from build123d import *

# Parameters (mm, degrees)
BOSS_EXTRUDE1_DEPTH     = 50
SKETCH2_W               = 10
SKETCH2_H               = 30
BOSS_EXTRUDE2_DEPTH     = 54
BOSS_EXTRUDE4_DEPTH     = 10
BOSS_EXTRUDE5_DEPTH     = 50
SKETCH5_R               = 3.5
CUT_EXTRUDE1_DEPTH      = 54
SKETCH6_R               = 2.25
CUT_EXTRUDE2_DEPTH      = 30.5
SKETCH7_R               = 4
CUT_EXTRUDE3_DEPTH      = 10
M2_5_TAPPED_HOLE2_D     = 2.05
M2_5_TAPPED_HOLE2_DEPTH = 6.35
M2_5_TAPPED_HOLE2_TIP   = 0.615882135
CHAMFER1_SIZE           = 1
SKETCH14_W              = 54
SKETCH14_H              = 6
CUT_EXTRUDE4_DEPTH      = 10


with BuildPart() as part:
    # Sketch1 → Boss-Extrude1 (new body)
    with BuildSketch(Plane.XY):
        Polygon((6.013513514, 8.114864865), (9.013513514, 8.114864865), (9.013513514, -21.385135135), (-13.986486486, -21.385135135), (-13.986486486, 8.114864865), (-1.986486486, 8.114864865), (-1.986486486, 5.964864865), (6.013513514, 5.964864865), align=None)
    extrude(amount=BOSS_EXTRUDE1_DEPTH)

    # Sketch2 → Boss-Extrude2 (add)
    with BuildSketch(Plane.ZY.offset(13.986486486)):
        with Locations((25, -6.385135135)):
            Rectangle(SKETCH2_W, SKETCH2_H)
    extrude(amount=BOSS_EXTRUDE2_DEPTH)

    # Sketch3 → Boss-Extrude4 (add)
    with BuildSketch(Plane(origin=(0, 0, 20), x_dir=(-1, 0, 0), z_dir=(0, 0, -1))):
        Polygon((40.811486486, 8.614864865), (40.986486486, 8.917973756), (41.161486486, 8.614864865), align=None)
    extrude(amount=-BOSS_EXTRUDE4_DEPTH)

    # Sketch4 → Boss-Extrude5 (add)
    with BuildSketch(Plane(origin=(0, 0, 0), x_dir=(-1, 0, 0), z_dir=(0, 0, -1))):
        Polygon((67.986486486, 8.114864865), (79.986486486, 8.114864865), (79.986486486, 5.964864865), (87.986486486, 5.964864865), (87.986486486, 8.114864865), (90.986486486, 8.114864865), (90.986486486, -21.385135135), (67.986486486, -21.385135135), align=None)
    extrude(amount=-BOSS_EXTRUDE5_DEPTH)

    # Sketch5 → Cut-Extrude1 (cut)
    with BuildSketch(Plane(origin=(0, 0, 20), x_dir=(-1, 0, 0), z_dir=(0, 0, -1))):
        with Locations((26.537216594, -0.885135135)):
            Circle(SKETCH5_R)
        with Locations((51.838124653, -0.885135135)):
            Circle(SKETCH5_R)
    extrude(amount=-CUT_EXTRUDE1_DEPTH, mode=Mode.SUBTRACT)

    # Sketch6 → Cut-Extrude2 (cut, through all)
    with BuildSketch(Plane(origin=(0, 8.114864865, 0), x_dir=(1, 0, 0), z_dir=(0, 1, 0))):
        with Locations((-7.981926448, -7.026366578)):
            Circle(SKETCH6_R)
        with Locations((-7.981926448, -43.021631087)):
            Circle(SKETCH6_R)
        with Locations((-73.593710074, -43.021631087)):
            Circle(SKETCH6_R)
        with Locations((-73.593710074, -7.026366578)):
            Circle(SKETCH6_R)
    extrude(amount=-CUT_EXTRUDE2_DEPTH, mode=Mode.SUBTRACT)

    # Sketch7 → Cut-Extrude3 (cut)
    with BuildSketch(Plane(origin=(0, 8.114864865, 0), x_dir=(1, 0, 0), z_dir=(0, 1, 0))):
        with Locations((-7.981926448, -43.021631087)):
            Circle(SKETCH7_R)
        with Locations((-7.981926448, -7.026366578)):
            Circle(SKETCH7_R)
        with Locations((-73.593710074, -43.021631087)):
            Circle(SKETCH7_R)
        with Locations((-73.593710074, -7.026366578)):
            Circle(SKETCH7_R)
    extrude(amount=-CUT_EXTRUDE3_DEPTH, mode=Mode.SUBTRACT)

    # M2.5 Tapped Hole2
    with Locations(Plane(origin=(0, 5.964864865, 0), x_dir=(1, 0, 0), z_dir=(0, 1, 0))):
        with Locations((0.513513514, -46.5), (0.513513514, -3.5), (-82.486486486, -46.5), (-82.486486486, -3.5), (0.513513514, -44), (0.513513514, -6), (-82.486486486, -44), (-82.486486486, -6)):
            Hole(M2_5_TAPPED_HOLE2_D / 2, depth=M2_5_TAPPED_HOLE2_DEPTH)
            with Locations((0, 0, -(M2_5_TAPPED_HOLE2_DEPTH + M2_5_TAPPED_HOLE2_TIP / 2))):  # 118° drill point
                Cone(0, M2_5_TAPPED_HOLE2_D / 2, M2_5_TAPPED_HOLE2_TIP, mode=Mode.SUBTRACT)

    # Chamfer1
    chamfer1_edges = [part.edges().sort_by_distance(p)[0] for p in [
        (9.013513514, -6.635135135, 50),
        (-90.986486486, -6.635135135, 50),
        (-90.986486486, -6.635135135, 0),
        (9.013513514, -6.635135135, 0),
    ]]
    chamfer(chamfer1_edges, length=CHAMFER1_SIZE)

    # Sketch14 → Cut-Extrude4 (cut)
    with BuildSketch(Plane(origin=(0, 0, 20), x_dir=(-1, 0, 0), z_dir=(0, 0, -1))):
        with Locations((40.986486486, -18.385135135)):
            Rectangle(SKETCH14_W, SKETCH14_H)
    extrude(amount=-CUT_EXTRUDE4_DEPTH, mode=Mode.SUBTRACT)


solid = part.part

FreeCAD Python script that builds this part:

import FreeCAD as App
import Part
import Sketcher
from FreeCAD import Vector
Q = App.Units.Quantity


def edges_at(feature, points):
    """Names of the edges that pass closest to the given points."""
    edges = feature.Shape.Edges
    near = lambda p: min(range(len(edges)), key=lambda i: edges[i].distToShape(Part.Vertex(*p))[0])
    return sorted({f"Edge{near(p) + 1}" for p in points})


def add_polygon(sketch, points):
    """Adds a closed chain of lines whose ends are joined by coincident constraints."""
    first, n = sketch.GeometryCount, len(points)
    for a, b in zip(points, points[1:] + points[:1]):
        sketch.addGeometry(Part.LineSegment(App.Vector(*a, 0), App.Vector(*b, 0)), False)
    for i in range(n):
        sketch.addConstraint(Sketcher.Constraint("Coincident", first + i, 2, first + (i + 1) % n, 1))

doc = App.newDocument("Part")
params = doc.addObject("Spreadsheet::Sheet", "Params")
for row, (alias, value) in enumerate([
    ("sketch1_width", "3 mm"),
    ("sketch1_width2", "8 mm"),
    ("sketch1_width3", "12 mm"),
    ("sketch1_height", "29.5 mm"),
    ("sketch1_height2", "2.15 mm"),
    ("pad1_length", "50 mm"),
    ("sketch2_width", "30 mm"),
    ("sketch2_height", "10 mm"),
    ("pad2_length", "54 mm"),
    ("sketch3_width", "0.35 mm"),
    ("pad3_length", "10 mm"),
    ("sketch4_width", "12 mm"),
    ("sketch4_width2", "23 mm"),
    ("sketch4_width3", "3 mm"),
    ("sketch4_height", "29.5 mm"),
    ("sketch4_height2", "2.15 mm"),
    ("pad4_length", "50 mm"),
    ("sketch5_diameter", "7 mm"),
    ("pocket1_length", "54 mm"),
    ("sketch6_diameter", "4.5 mm"),
    ("sketch7_diameter", "8 mm"),
    ("pocket3_length", "10 mm"),
    ("sketch8_diameter", "2.05 mm"),
    ("hole_diameter", "2.05 mm"),
    ("hole_depth", "6.35 mm"),
    ("chamfer_size", "1 mm"),
    ("sketch9_width", "54 mm"),
    ("sketch9_height", "6 mm"),
    ("pocket4_length", "10 mm"),
], start=1):
    params.set(f"A{row}", alias)
    params.set(f"B{row}", "=" + value)
    params.setAlias(f"B{row}", alias)

body = doc.addObject("PartDesign::Body", "Body")

# Sketch on XY plane
sketch1 = doc.addObject("Sketcher::SketchObject", "Sketch")
body.addObject(sketch1)
sketch1.AttachmentSupport = (doc.XY_Plane, [""])
sketch1.MapMode = "FlatFace"
add_polygon(sketch1, [(9, 8.1), (6, 8.1), (6, 6), (-2, 6), (-2, 8.1), (-14, 8.1), (-14, -21.4), (9, -21.4)])  # lines 0-7
sketch1.addConstraint(Sketcher.Constraint("Horizontal", 0))
sketch1.addConstraint(Sketcher.Constraint("Vertical", 1))
sketch1.addConstraint(Sketcher.Constraint("Horizontal", 2))
sketch1.addConstraint(Sketcher.Constraint("Vertical", 3))
sketch1.addConstraint(Sketcher.Constraint("Horizontal", 4))
sketch1.addConstraint(Sketcher.Constraint("Vertical", 5))
sketch1.addConstraint(Sketcher.Constraint("Horizontal", 6))
sketch1.addConstraint(Sketcher.Constraint("Vertical", 7))
sketch1.addConstraint(Sketcher.Constraint("Horizontal", 0, 2, 3, 2))
sketch1.addConstraint(Sketcher.Constraint("DistanceX", 0, 2, 0, 1, 3.0))
sketch1.addConstraint(Sketcher.Constraint("DistanceX", 2, 2, 2, 1, 8.0))
sketch1.addConstraint(Sketcher.Constraint("DistanceX", 4, 2, 4, 1, 12.0))
sketch1.addConstraint(Sketcher.Constraint("DistanceY", 5, 2, 5, 1, 29.5))
sketch1.addConstraint(Sketcher.Constraint("DistanceY", 1, 2, 1, 1, 2.15))
sketch1.addConstraint(Sketcher.Constraint("DistanceX", -1, 1, 0, 2, 6.013514))
sketch1.addConstraint(Sketcher.Constraint("DistanceY", -1, 1, 0, 2, 8.114865))
sketch1.setExpression("Constraints[17]", "Params.sketch1_width")
sketch1.setExpression("Constraints[18]", "Params.sketch1_width2")
sketch1.setExpression("Constraints[19]", "Params.sketch1_width3")
sketch1.setExpression("Constraints[20]", "Params.sketch1_height")
sketch1.setExpression("Constraints[21]", "Params.sketch1_height2")
pad1 = doc.addObject("PartDesign::Pad", "Pad")
body.addObject(pad1)
pad1.Profile = sketch1
pad1.setExpression("Length", "Params.pad1_length")

# Sketch on YZ plane
sketch2 = doc.addObject("Sketcher::SketchObject", "Sketch001")
body.addObject(sketch2)
sketch2.AttachmentSupport = (doc.YZ_Plane, [""])
sketch2.MapMode = "FlatFace"
sketch2.AttachmentOffset = App.Placement(Vector(0, 0, -13.986486), App.Rotation())
add_polygon(sketch2, [(9, 20), (-21, 20), (-21, 30), (9, 30)])  # lines 0-3
sketch2.addConstraint(Sketcher.Constraint("Horizontal", 0))
sketch2.addConstraint(Sketcher.Constraint("Vertical", 1))
sketch2.addConstraint(Sketcher.Constraint("Horizontal", 2))
sketch2.addConstraint(Sketcher.Constraint("Vertical", 3))
sketch2.addConstraint(Sketcher.Constraint("DistanceX", 0, 2, 0, 1, 30.0))
sketch2.addConstraint(Sketcher.Constraint("DistanceY", 1, 1, 1, 2, 10.0))
sketch2.addConstraint(Sketcher.Constraint("DistanceY", -1, 1, 0, 2, 20.0))
sketch2.addConstraint(Sketcher.Constraint("DistanceX", 0, 2, -1, 1, 21.385135))
sketch2.setExpression("Constraints[8]", "Params.sketch2_width")
sketch2.setExpression("Constraints[9]", "Params.sketch2_height")
pad2 = doc.addObject("PartDesign::Pad", "Pad001")
body.addObject(pad2)
pad2.Profile = sketch2
pad2.setExpression("Length", "Params.pad2_length")
pad2.Reversed = True

# Sketch on XY plane
sketch3 = doc.addObject("Sketcher::SketchObject", "Sketch002")
body.addObject(sketch3)
sketch3.AttachmentSupport = (doc.XY_Plane, [""])
sketch3.MapMode = "FlatFace"
sketch3.AttachmentOffset = App.Placement(Vector(0, 0, 20), App.Rotation())
add_polygon(sketch3, [(-40.99, 8.92), (-40.81, 8.61), (-41.16, 8.61)])  # lines 0-2
sketch3.addConstraint(Sketcher.Constraint("Horizontal", 1))
sketch3.addConstraint(Sketcher.Constraint("Equal", 0, 2))
sketch3.addConstraint(Sketcher.Constraint("Angle", 0, Q("-60 deg")))
sketch3.addConstraint(Sketcher.Constraint("DistanceX", 1, 2, 1, 1, 0.35))
sketch3.addConstraint(Sketcher.Constraint("DistanceX", 0, 2, -1, 1, 40.811486))
sketch3.addConstraint(Sketcher.Constraint("DistanceY", -1, 1, 0, 2, 8.614865))
sketch3.setExpression("Constraints[6]", "Params.sketch3_width")
pad3 = doc.addObject("PartDesign::Pad", "Pad002")
body.addObject(pad3)
pad3.Profile = sketch3
pad3.setExpression("Length", "Params.pad3_length")

# Sketch on XY plane
sketch4 = doc.addObject("Sketcher::SketchObject", "Sketch003")
body.addObject(sketch4)
sketch4.AttachmentSupport = (doc.XY_Plane, [""])
sketch4.MapMode = "FlatFace"
add_polygon(sketch4, [(-80, 8.1), (-68, 8.1), (-68, -21.4), (-91, -21.4), (-91, 8.1), (-88, 8.1), (-88, 6), (-80, 6)])  # lines 0-7
sketch4.addConstraint(Sketcher.Constraint("Horizontal", 0))
sketch4.addConstraint(Sketcher.Constraint("Vertical", 1))
sketch4.addConstraint(Sketcher.Constraint("Horizontal", 2))
sketch4.addConstraint(Sketcher.Constraint("Vertical", 3))
sketch4.addConstraint(Sketcher.Constraint("Horizontal", 4))
sketch4.addConstraint(Sketcher.Constraint("Vertical", 5))
sketch4.addConstraint(Sketcher.Constraint("Horizontal", 6))
sketch4.addConstraint(Sketcher.Constraint("Vertical", 7))
sketch4.addConstraint(Sketcher.Constraint("Horizontal", 0, 2, 3, 2))
sketch4.addConstraint(Sketcher.Constraint("DistanceX", 0, 1, 0, 2, 12.0))
sketch4.addConstraint(Sketcher.Constraint("DistanceX", 2, 2, 2, 1, 23.0))
sketch4.addConstraint(Sketcher.Constraint("DistanceX", 4, 1, 4, 2, 3.0))
sketch4.addConstraint(Sketcher.Constraint("DistanceY", 1, 2, 1, 1, 29.5))
sketch4.addConstraint(Sketcher.Constraint("DistanceY", 5, 2, 5, 1, 2.15))
sketch4.addConstraint(Sketcher.Constraint("DistanceX", 0, 2, -1, 1, 67.986486))
sketch4.addConstraint(Sketcher.Constraint("DistanceY", -1, 1, 0, 2, 8.114865))
sketch4.setExpression("Constraints[17]", "Params.sketch4_width")
sketch4.setExpression("Constraints[18]", "Params.sketch4_width2")
sketch4.setExpression("Constraints[19]", "Params.sketch4_width3")
sketch4.setExpression("Constraints[20]", "Params.sketch4_height")
sketch4.setExpression("Constraints[21]", "Params.sketch4_height2")
pad4 = doc.addObject("PartDesign::Pad", "Pad003")
body.addObject(pad4)
pad4.Profile = sketch4
pad4.setExpression("Length", "Params.pad4_length")

# Sketch on XY plane
sketch5 = doc.addObject("Sketcher::SketchObject", "Sketch004")
body.addObject(sketch5)
sketch5.AttachmentSupport = (doc.XY_Plane, [""])
sketch5.MapMode = "FlatFace"
sketch5.AttachmentOffset = App.Placement(Vector(0, 0, 20), App.Rotation())
sketch5.addGeometry(Part.Circle(Vector(-26.5, -0.9, 0), Vector(0, 0, 1), 3.5), False)
sketch5.addGeometry(Part.Circle(Vector(-51.8, -0.9, 0), Vector(0, 0, 1), 3.5), False)
sketch5.addConstraint(Sketcher.Constraint("Equal", 0, 1))
sketch5.addConstraint(Sketcher.Constraint("Horizontal", 0, 3, 1, 3))
sketch5.addConstraint(Sketcher.Constraint("Diameter", 0, 7.0))
sketch5.addConstraint(Sketcher.Constraint("DistanceX", 1, 3, 0, 3, 25.300908))
sketch5.addConstraint(Sketcher.Constraint("DistanceX", 0, 3, -1, 1, 26.537217))
sketch5.addConstraint(Sketcher.Constraint("DistanceY", 0, 3, -1, 1, 0.885135))
sketch5.setExpression("Constraints[2]", "Params.sketch5_diameter")
pocket1 = doc.addObject("PartDesign::Pocket", "Pocket")
body.addObject(pocket1)
pocket1.Profile = sketch5
pocket1.setExpression("Length", "Params.pocket1_length")
pocket1.Reversed = True

# Sketch on XZ plane
sketch6 = doc.addObject("Sketcher::SketchObject", "Sketch005")
body.addObject(sketch6)
sketch6.AttachmentSupport = (doc.XZ_Plane, [""])
sketch6.MapMode = "FlatFace"
sketch6.AttachmentOffset = App.Placement(Vector(0, 0, -8.114865), App.Rotation())
sketch6.addGeometry(Part.Circle(Vector(-8, 7, 0), Vector(0, 0, 1), 2.2), False)
sketch6.addGeometry(Part.Circle(Vector(-8, 43, 0), Vector(0, 0, 1), 2.2), False)
sketch6.addGeometry(Part.Circle(Vector(-73.6, 43, 0), Vector(0, 0, 1), 2.2), False)
sketch6.addGeometry(Part.Circle(Vector(-73.6, 7, 0), Vector(0, 0, 1), 2.2), False)
sketch6.addConstraint(Sketcher.Constraint("Equal", 0, 1))
sketch6.addConstraint(Sketcher.Constraint("Equal", 1, 2))
sketch6.addConstraint(Sketcher.Constraint("Equal", 2, 3))
sketch6.addConstraint(Sketcher.Constraint("Horizontal", 1, 3, 2, 3))
sketch6.addConstraint(Sketcher.Constraint("Horizontal", 0, 3, 3, 3))
sketch6.addConstraint(Sketcher.Constraint("Vertical", 0, 3, 1, 3))
sketch6.addConstraint(Sketcher.Constraint("Vertical", 2, 3, 3, 3))
sketch6.addConstraint(Sketcher.Constraint("Diameter", 0, 4.5))
sketch6.addConstraint(Sketcher.Constraint("DistanceY", -1, 1, 1, 3, 43.021631))
sketch6.addConstraint(Sketcher.Constraint("DistanceX", 2, 3, -1, 1, 73.59371))
sketch6.addConstraint(Sketcher.Constraint("DistanceX", 0, 3, -1, 1, 7.981926))
sketch6.addConstraint(Sketcher.Constraint("DistanceY", -1, 1, 0, 3, 7.026367))
sketch6.setExpression("Constraints[7]", "Params.sketch6_diameter")
pocket2 = doc.addObject("PartDesign::Pocket", "Pocket001")
body.addObject(pocket2)
pocket2.Profile = sketch6
pocket2.Type = "ThroughAll"
pocket2.Reversed = True

# Sketch on XZ plane
sketch7 = doc.addObject("Sketcher::SketchObject", "Sketch006")
body.addObject(sketch7)
sketch7.AttachmentSupport = (doc.XZ_Plane, [""])
sketch7.MapMode = "FlatFace"
sketch7.AttachmentOffset = App.Placement(Vector(0, 0, -8.114865), App.Rotation())
sketch7.addGeometry(Part.Circle(Vector(-8, 43, 0), Vector(0, 0, 1), 4), False)
sketch7.addGeometry(Part.Circle(Vector(-8, 7, 0), Vector(0, 0, 1), 4), False)
sketch7.addGeometry(Part.Circle(Vector(-73.6, 43, 0), Vector(0, 0, 1), 4), False)
sketch7.addGeometry(Part.Circle(Vector(-73.6, 7, 0), Vector(0, 0, 1), 4), False)
sketch7.addConstraint(Sketcher.Constraint("Equal", 0, 1))
sketch7.addConstraint(Sketcher.Constraint("Equal", 1, 2))
sketch7.addConstraint(Sketcher.Constraint("Equal", 2, 3))
sketch7.addConstraint(Sketcher.Constraint("Horizontal", 0, 3, 2, 3))
sketch7.addConstraint(Sketcher.Constraint("Horizontal", 1, 3, 3, 3))
sketch7.addConstraint(Sketcher.Constraint("Vertical", 0, 3, 1, 3))
sketch7.addConstraint(Sketcher.Constraint("Vertical", 2, 3, 3, 3))
sketch7.addConstraint(Sketcher.Constraint("Diameter", 0, 8.0))
sketch7.addConstraint(Sketcher.Constraint("DistanceY", -1, 1, 0, 3, 43.021631))
sketch7.addConstraint(Sketcher.Constraint("DistanceX", 2, 3, -1, 1, 73.59371))
sketch7.addConstraint(Sketcher.Constraint("DistanceX", 0, 3, -1, 1, 7.981926))
sketch7.addConstraint(Sketcher.Constraint("DistanceY", -1, 1, 1, 3, 7.026367))
sketch7.setExpression("Constraints[7]", "Params.sketch7_diameter")
pocket3 = doc.addObject("PartDesign::Pocket", "Pocket002")
body.addObject(pocket3)
pocket3.Profile = sketch7
pocket3.setExpression("Length", "Params.pocket3_length")
pocket3.Reversed = True

# Sketch on XZ plane
sketch8 = doc.addObject("Sketcher::SketchObject", "Sketch007")
body.addObject(sketch8)
sketch8.AttachmentSupport = (doc.XZ_Plane, [""])
sketch8.MapMode = "FlatFace"
sketch8.AttachmentOffset = App.Placement(Vector(0, 0, -5.964865), App.Rotation())
sketch8.addGeometry(Part.Circle(Vector(0.5, 46.5, 0), Vector(0, 0, 1), 1), False)
sketch8.addGeometry(Part.Circle(Vector(0.5, 3.5, 0), Vector(0, 0, 1), 1), False)
sketch8.addGeometry(Part.Circle(Vector(-82.5, 46.5, 0), Vector(0, 0, 1), 1), False)
sketch8.addGeometry(Part.Circle(Vector(-82.5, 3.5, 0), Vector(0, 0, 1), 1), False)
sketch8.addGeometry(Part.Circle(Vector(0.5, 44, 0), Vector(0, 0, 1), 1), False)
sketch8.addGeometry(Part.Circle(Vector(0.5, 6, 0), Vector(0, 0, 1), 1), False)
sketch8.addGeometry(Part.Circle(Vector(-82.5, 44, 0), Vector(0, 0, 1), 1), False)
sketch8.addGeometry(Part.Circle(Vector(-82.5, 6, 0), Vector(0, 0, 1), 1), False)
sketch8.addConstraint(Sketcher.Constraint("Equal", 0, 1))
sketch8.addConstraint(Sketcher.Constraint("Equal", 1, 2))
sketch8.addConstraint(Sketcher.Constraint("Equal", 2, 3))
sketch8.addConstraint(Sketcher.Constraint("Equal", 3, 4))
sketch8.addConstraint(Sketcher.Constraint("Equal", 4, 5))
sketch8.addConstraint(Sketcher.Constraint("Equal", 5, 6))
sketch8.addConstraint(Sketcher.Constraint("Equal", 6, 7))
sketch8.addConstraint(Sketcher.Constraint("Horizontal", 0, 3, 2, 3))
sketch8.addConstraint(Sketcher.Constraint("Horizontal", 1, 3, 3, 3))
sketch8.addConstraint(Sketcher.Constraint("Horizontal", 4, 3, 6, 3))
sketch8.addConstraint(Sketcher.Constraint("Horizontal", 5, 3, 7, 3))
sketch8.addConstraint(Sketcher.Constraint("Vertical", 0, 3, 1, 3))
sketch8.addConstraint(Sketcher.Constraint("Vertical", 2, 3, 3, 3))
sketch8.addConstraint(Sketcher.Constraint("Vertical", 1, 3, 4, 3))
sketch8.addConstraint(Sketcher.Constraint("Vertical", 4, 3, 5, 3))
sketch8.addConstraint(Sketcher.Constraint("Vertical", 3, 3, 6, 3))
sketch8.addConstraint(Sketcher.Constraint("Vertical", 6, 3, 7, 3))
sketch8.addConstraint(Sketcher.Constraint("Diameter", 0, 2.05))
sketch8.addConstraint(Sketcher.Constraint("DistanceY", -1, 1, 4, 3, 44.0))
sketch8.addConstraint(Sketcher.Constraint("DistanceY", -1, 1, 5, 3, 6.0))
sketch8.addConstraint(Sketcher.Constraint("DistanceY", 1, 3, 0, 3, 43.0))
sketch8.addConstraint(Sketcher.Constraint("DistanceX", 2, 3, 0, 3, 83.0))
sketch8.addConstraint(Sketcher.Constraint("DistanceY", -1, 1, 0, 3, 46.5))
sketch8.addConstraint(Sketcher.Constraint("DistanceX", -1, 1, 0, 3, 0.513514))
sketch8.setExpression("Constraints[17]", "Params.sketch8_diameter")
doc.recompute()
hole = doc.addObject("PartDesign::Hole", "Hole")
body.addObject(hole)
hole.Profile = sketch8
hole.ThreadType = "None"
hole.setExpression("Diameter", "Params.hole_diameter")
hole.DepthType = "Dimension"
hole.setExpression("Depth", "Params.hole_depth")
hole.DrillPoint = "Angled"
hole.DrillPointAngle = 118
hole.Reversed = True
doc.recompute()

chamfer = doc.addObject("PartDesign::Chamfer", "Chamfer")
body.addObject(chamfer)
chamfer.Base = (hole, edges_at(hole, [
    (9.014, -6.635, 50),
    (-90.986, -6.635, 50),
    (-90.986, -6.635, 0),
    (9.014, -6.635, 0),
]))
chamfer.setExpression("Size", "Params.chamfer_size")

# Sketch on XY plane
sketch9 = doc.addObject("Sketcher::SketchObject", "Sketch008")
body.addObject(sketch9)
sketch9.AttachmentSupport = (doc.XY_Plane, [""])
sketch9.MapMode = "FlatFace"
sketch9.AttachmentOffset = App.Placement(Vector(0, 0, 20), App.Rotation())
add_polygon(sketch9, [(-14, -15), (-14, -21), (-68, -21), (-68, -15)])  # lines 0-3
sketch9.addConstraint(Sketcher.Constraint("Vertical", 0))
sketch9.addConstraint(Sketcher.Constraint("Horizontal", 1))
sketch9.addConstraint(Sketcher.Constraint("Vertical", 2))
sketch9.addConstraint(Sketcher.Constraint("Horizontal", 3))
sketch9.addConstraint(Sketcher.Constraint("DistanceX", 1, 2, 1, 1, 54.0))
sketch9.addConstraint(Sketcher.Constraint("DistanceY", 0, 2, 0, 1, 6.0))
sketch9.addConstraint(Sketcher.Constraint("DistanceX", 0, 2, -1, 1, 13.986486))
sketch9.addConstraint(Sketcher.Constraint("DistanceY", 0, 2, -1, 1, 21.385135))
sketch9.setExpression("Constraints[8]", "Params.sketch9_width")
sketch9.setExpression("Constraints[9]", "Params.sketch9_height")
pocket4 = doc.addObject("PartDesign::Pocket", "Pocket003")
body.addObject(pocket4)
pocket4.Profile = sketch9
pocket4.setExpression("Length", "Params.pocket4_length")
pocket4.Reversed = True

doc.recompute()
